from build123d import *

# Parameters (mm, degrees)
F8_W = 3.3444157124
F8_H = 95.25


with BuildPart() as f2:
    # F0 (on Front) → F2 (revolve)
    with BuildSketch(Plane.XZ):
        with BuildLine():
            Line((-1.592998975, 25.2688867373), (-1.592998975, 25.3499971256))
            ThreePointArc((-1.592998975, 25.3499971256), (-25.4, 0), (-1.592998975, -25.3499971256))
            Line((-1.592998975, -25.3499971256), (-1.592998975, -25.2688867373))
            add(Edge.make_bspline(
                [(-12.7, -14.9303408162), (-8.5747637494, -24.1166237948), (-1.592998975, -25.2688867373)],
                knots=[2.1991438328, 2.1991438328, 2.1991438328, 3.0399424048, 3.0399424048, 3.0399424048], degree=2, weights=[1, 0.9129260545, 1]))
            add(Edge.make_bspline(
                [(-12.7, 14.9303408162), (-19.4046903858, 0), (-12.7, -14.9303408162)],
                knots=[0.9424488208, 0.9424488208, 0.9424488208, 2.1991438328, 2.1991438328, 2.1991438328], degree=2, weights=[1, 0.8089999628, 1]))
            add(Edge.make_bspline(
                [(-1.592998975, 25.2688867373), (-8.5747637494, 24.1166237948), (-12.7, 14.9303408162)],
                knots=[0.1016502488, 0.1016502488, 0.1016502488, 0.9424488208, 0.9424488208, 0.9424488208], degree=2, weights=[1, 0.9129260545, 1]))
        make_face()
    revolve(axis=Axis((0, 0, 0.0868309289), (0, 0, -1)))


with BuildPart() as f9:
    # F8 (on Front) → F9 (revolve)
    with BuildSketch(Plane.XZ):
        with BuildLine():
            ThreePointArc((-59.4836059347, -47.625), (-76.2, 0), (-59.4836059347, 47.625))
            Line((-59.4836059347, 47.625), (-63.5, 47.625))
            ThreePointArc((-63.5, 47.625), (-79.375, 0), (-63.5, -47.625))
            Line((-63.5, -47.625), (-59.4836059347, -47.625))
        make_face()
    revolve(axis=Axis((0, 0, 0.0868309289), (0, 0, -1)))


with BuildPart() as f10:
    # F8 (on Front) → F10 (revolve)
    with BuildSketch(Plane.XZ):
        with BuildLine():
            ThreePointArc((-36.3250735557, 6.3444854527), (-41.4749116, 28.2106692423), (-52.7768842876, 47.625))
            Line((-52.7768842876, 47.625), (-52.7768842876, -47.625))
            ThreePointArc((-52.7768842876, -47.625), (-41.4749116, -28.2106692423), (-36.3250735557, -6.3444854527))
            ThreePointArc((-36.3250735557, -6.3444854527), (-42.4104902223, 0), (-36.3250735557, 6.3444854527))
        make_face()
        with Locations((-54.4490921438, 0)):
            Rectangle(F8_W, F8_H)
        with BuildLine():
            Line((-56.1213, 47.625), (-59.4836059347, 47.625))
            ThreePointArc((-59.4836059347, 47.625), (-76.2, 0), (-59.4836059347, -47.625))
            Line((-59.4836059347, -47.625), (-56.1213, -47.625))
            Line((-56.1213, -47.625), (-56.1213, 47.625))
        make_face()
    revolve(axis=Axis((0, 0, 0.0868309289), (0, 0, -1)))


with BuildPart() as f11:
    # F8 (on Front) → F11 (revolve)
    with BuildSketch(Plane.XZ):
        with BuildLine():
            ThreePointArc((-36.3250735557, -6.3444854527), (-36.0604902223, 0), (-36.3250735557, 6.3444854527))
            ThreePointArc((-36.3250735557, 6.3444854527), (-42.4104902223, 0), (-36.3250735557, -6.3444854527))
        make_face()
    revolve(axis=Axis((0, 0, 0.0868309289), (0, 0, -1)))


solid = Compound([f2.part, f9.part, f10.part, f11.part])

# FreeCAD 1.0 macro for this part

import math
import FreeCAD as App
import Part
import Sketcher
Q = App.Units.Quantity

doc = App.newDocument("Part")
body = doc.addObject("PartDesign::Body", "Body")

# Sketch on XZ plane
sketch1 = body.newObject("Sketcher::SketchObject", "Sketch")
sketch1.AttachmentSupport = (doc.getObject("XZ_Plane"), [""])
sketch1.MapMode = "FlatFace"
sketch1.addGeometry([
    Part.LineSegment(App.Vector(-1.592999, 25.268887, 0), App.Vector(-1.592999, 25.349997, 0)),  # 0
    Part.ArcOfCircle(Part.Circle(App.Vector(0, 0, 0), App.Vector(0, 0, 1), 25.4), math.radians(93.59575), math.radians(266.40425)),  # 1
    Part.LineSegment(App.Vector(-1.592999, -25.349997, 0), App.Vector(-1.592999, -25.268887, 0)),  # 2
    Part.BSplineCurve([App.Vector(-12.7, -14.930341, 0), App.Vector(-8.574764, -24.116624, 0), App.Vector(-1.592999, -25.268887, 0)], [3, 3], [2.199143833, 3.039942405], False, 2, [1, 0.912926054, 1], False),  # 3
    Part.BSplineCurve([App.Vector(-12.7, 14.930341, 0), App.Vector(-19.40469, 0, 0), App.Vector(-12.7, -14.930341, 0)], [3, 3], [0.942448821, 2.199143833], False, 2, [1, 0.808999963, 1], False),  # 4
    Part.BSplineCurve([App.Vector(-1.592999, 25.268887, 0), App.Vector(-8.574764, 24.116624, 0), App.Vector(-12.7, 14.930341, 0)], [3, 3], [0.101650249, 0.942448821], False, 2, [1, 0.912926054, 1], False),  # 5
], False)
sketch1.addConstraint([
    Sketcher.Constraint("Block", 3),
    Sketcher.Constraint("Block", 4),
    Sketcher.Constraint("Block", 5),
    Sketcher.Constraint("Coincident", 0, 2, 1, 1),
    Sketcher.Constraint("Coincident", 1, 2, 2, 1),
    Sketcher.Constraint("Coincident", 2, 2, 3, 2),
    Sketcher.Constraint("Coincident", 5, 1, 0, 1),
    Sketcher.Constraint("Vertical", 0),
    Sketcher.Constraint("Vertical", 2),
    Sketcher.Constraint("Coincident", 1, 3, -1, 1),
    Sketcher.Constraint("Radius", 1, Q("1 in")),
])
revolution = body.newObject("PartDesign::Revolution", "Revolution")
revolution.Profile = sketch1
revolution.ReferenceAxis = (sketch1, ["V_Axis"])
revolution.Angle = 360
body2 = doc.addObject("PartDesign::Body", "Body001")

# Sketch on XZ plane
sketch2 = body2.newObject("Sketcher::SketchObject", "Sketch001")
sketch2.AttachmentSupport = (doc.getObject("XZ_Plane001"), [""])
sketch2.MapMode = "FlatFace"
sketch2.addGeometry([
    Part.ArcOfCircle(Part.Circle(App.Vector(0, 0, 0), App.Vector(0, 0, 1), 76.2), math.radians(141), math.radians(219)),
    Part.LineSegment(App.Vector(-59.5, 47.6, 0), App.Vector(-63.5, 47.6, 0)),
    Part.ArcOfCircle(Part.Circle(App.Vector(0, 0, 0), App.Vector(0, 0, 1), 79.4), math.radians(143), math.radians(217)),
    Part.LineSegment(App.Vector(-63.5, -47.6, 0), App.Vector(-59.5, -47.6, 0)),
], False)
sketch2.addConstraint([
    Sketcher.Constraint("Coincident", 0, 1, 1, 1),
    Sketcher.Constraint("Coincident", 1, 2, 2, 1),
    Sketcher.Constraint("Coincident", 2, 2, 3, 1),
    Sketcher.Constraint("Coincident", 3, 2, 0, 2),
    Sketcher.Constraint("Horizontal", 1),
    Sketcher.Constraint("Horizontal", 3),
    Sketcher.Constraint("Coincident", 0, 3, -1, 1),
    Sketcher.Constraint("Coincident", 2, 3, -1, 1),
    Sketcher.Constraint("Vertical", 1, 2, 2, 2),
    Sketcher.Constraint("Radius", 0, Q("3 in")),
    Sketcher.Constraint("Radius", 2, Q("3.125 in")),
    Sketcher.Constraint("DistanceX", 1, 2, -1, 1, Q("2.5 in")),
])
revolution2 = body2.newObject("PartDesign::Revolution", "Revolution001")
revolution2.Profile = sketch2
revolution2.ReferenceAxis = (sketch2, ["V_Axis"])
revolution2.Angle = 360
body3 = doc.addObject("PartDesign::Body", "Body002")

# Sketch on XZ plane
sketch3 = body3.newObject("Sketcher::SketchObject", "Sketch002")
sketch3.AttachmentSupport = (doc.getObject("XZ_Plane002"), [""])
sketch3.MapMode = "FlatFace"
sketch3.addGeometry([
    Part.ArcOfCircle(Part.Circle(App.Vector(-112, 0, 0), App.Vector(0, 0, 1), 76), math.radians(5), math.radians(39)),  # 0
    Part.LineSegment(App.Vector(-53, 48, 0), App.Vector(-59, 48, 0)),  # 1
    Part.ArcOfCircle(Part.Circle(App.Vector(0, 0, 0), App.Vector(0, 0, 1), 76), math.radians(141), math.radians(219)),  # 2
    Part.LineSegment(App.Vector(-59, -48, 0), App.Vector(-53, -48, 0)),  # 3
    Part.ArcOfCircle(Part.Circle(App.Vector(-112, 0, 0), App.Vector(0, 0, 1), 76), math.radians(-39), math.radians(-5)),  # 4
    Part.ArcOfCircle(Part.Circle(App.Vector(-36, 0, 0), App.Vector(0, 0, 1), 6), math.radians(92), math.radians(268)),  # 5
], False)
sketch3.addConstraint([
    Sketcher.Constraint("Coincident", 0, 2, 1, 1),
    Sketcher.Constraint("Coincident", 1, 2, 2, 1),
    Sketcher.Constraint("Coincident", 2, 2, 3, 1),
    Sketcher.Constraint("Coincident", 3, 2, 4, 1),
    Sketcher.Constraint("Coincident", 4, 2, 5, 2),
    Sketcher.Constraint("Coincident", 5, 1, 0, 1),
    Sketcher.Constraint("Horizontal", 1),
    Sketcher.Constraint("Horizontal", 3),
    Sketcher.Constraint("Coincident", 2, 3, -1, 1),
    Sketcher.Constraint("Coincident", 4, 3, 0, 3),
    Sketcher.Constraint("Equal", 0, 2),
    Sketcher.Constraint("Equal", 2, 4),
    Sketcher.Constraint("Symmetric", 0, 2, 3, 2, -1),
    Sketcher.Constraint("PointOnObject", 5, 3, -1),
    Sketcher.Constraint("Radius", 0, Q("3 in")),
    Sketcher.Constraint("Radius", 5, Q("0.25 in")),
    Sketcher.Constraint("DistanceX", 0, 3, 5, 3, Q("3 in")),
    Sketcher.Constraint("DistanceY", 2, 2, 1, 2, Q("3.75 in")),
    Sketcher.Constraint("DistanceX", 1, 2, 1, 1, 6.706722),
])
revolution3 = body3.newObject("PartDesign::Revolution", "Revolution002")
revolution3.Profile = sketch3
revolution3.ReferenceAxis = (sketch3, ["V_Axis"])
revolution3.Angle = 360
body4 = doc.addObject("PartDesign::Body", "Body003")

# Sketch on XZ plane
sketch4 = body4.newObject("Sketcher::SketchObject", "Sketch003")
sketch4.AttachmentSupport = (doc.getObject("XZ_Plane003"), [""])
sketch4.MapMode = "FlatFace"
sketch4.addGeometry([
    Part.ArcOfCircle(Part.Circle(App.Vector(-112, 0, 0), App.Vector(0, 0, 1), 76), math.radians(-4.78), math.radians(4.78)),
    Part.ArcOfCircle(Part.Circle(App.Vector(-36, 0, 0), App.Vector(0, 0, 1), 6), math.radians(92), math.radians(268)),
], False)
sketch4.addConstraint([
    Sketcher.Constraint("Coincident", 0, 1, 1, 2),
    Sketcher.Constraint("Coincident", 1, 1, 0, 2),
    Sketcher.Constraint("Symmetric", 0, 1, 1, 1, -1),
    Sketcher.Constraint("Radius", 0, Q("3 in")),
    Sketcher.Constraint("Radius", 1, Q("0.25 in")),
    Sketcher.Constraint("DistanceX", 0, 3, 1, 3, Q("3 in")),
    Sketcher.Constraint("DistanceX", 0, 3, -1, 1, 112.26049),
])
revolution4 = body4.newObject("PartDesign::Revolution", "Revolution003")
revolution4.Profile = sketch4
revolution4.ReferenceAxis = (sketch4, ["V_Axis"])
revolution4.Angle = 360

doc.recompute()
